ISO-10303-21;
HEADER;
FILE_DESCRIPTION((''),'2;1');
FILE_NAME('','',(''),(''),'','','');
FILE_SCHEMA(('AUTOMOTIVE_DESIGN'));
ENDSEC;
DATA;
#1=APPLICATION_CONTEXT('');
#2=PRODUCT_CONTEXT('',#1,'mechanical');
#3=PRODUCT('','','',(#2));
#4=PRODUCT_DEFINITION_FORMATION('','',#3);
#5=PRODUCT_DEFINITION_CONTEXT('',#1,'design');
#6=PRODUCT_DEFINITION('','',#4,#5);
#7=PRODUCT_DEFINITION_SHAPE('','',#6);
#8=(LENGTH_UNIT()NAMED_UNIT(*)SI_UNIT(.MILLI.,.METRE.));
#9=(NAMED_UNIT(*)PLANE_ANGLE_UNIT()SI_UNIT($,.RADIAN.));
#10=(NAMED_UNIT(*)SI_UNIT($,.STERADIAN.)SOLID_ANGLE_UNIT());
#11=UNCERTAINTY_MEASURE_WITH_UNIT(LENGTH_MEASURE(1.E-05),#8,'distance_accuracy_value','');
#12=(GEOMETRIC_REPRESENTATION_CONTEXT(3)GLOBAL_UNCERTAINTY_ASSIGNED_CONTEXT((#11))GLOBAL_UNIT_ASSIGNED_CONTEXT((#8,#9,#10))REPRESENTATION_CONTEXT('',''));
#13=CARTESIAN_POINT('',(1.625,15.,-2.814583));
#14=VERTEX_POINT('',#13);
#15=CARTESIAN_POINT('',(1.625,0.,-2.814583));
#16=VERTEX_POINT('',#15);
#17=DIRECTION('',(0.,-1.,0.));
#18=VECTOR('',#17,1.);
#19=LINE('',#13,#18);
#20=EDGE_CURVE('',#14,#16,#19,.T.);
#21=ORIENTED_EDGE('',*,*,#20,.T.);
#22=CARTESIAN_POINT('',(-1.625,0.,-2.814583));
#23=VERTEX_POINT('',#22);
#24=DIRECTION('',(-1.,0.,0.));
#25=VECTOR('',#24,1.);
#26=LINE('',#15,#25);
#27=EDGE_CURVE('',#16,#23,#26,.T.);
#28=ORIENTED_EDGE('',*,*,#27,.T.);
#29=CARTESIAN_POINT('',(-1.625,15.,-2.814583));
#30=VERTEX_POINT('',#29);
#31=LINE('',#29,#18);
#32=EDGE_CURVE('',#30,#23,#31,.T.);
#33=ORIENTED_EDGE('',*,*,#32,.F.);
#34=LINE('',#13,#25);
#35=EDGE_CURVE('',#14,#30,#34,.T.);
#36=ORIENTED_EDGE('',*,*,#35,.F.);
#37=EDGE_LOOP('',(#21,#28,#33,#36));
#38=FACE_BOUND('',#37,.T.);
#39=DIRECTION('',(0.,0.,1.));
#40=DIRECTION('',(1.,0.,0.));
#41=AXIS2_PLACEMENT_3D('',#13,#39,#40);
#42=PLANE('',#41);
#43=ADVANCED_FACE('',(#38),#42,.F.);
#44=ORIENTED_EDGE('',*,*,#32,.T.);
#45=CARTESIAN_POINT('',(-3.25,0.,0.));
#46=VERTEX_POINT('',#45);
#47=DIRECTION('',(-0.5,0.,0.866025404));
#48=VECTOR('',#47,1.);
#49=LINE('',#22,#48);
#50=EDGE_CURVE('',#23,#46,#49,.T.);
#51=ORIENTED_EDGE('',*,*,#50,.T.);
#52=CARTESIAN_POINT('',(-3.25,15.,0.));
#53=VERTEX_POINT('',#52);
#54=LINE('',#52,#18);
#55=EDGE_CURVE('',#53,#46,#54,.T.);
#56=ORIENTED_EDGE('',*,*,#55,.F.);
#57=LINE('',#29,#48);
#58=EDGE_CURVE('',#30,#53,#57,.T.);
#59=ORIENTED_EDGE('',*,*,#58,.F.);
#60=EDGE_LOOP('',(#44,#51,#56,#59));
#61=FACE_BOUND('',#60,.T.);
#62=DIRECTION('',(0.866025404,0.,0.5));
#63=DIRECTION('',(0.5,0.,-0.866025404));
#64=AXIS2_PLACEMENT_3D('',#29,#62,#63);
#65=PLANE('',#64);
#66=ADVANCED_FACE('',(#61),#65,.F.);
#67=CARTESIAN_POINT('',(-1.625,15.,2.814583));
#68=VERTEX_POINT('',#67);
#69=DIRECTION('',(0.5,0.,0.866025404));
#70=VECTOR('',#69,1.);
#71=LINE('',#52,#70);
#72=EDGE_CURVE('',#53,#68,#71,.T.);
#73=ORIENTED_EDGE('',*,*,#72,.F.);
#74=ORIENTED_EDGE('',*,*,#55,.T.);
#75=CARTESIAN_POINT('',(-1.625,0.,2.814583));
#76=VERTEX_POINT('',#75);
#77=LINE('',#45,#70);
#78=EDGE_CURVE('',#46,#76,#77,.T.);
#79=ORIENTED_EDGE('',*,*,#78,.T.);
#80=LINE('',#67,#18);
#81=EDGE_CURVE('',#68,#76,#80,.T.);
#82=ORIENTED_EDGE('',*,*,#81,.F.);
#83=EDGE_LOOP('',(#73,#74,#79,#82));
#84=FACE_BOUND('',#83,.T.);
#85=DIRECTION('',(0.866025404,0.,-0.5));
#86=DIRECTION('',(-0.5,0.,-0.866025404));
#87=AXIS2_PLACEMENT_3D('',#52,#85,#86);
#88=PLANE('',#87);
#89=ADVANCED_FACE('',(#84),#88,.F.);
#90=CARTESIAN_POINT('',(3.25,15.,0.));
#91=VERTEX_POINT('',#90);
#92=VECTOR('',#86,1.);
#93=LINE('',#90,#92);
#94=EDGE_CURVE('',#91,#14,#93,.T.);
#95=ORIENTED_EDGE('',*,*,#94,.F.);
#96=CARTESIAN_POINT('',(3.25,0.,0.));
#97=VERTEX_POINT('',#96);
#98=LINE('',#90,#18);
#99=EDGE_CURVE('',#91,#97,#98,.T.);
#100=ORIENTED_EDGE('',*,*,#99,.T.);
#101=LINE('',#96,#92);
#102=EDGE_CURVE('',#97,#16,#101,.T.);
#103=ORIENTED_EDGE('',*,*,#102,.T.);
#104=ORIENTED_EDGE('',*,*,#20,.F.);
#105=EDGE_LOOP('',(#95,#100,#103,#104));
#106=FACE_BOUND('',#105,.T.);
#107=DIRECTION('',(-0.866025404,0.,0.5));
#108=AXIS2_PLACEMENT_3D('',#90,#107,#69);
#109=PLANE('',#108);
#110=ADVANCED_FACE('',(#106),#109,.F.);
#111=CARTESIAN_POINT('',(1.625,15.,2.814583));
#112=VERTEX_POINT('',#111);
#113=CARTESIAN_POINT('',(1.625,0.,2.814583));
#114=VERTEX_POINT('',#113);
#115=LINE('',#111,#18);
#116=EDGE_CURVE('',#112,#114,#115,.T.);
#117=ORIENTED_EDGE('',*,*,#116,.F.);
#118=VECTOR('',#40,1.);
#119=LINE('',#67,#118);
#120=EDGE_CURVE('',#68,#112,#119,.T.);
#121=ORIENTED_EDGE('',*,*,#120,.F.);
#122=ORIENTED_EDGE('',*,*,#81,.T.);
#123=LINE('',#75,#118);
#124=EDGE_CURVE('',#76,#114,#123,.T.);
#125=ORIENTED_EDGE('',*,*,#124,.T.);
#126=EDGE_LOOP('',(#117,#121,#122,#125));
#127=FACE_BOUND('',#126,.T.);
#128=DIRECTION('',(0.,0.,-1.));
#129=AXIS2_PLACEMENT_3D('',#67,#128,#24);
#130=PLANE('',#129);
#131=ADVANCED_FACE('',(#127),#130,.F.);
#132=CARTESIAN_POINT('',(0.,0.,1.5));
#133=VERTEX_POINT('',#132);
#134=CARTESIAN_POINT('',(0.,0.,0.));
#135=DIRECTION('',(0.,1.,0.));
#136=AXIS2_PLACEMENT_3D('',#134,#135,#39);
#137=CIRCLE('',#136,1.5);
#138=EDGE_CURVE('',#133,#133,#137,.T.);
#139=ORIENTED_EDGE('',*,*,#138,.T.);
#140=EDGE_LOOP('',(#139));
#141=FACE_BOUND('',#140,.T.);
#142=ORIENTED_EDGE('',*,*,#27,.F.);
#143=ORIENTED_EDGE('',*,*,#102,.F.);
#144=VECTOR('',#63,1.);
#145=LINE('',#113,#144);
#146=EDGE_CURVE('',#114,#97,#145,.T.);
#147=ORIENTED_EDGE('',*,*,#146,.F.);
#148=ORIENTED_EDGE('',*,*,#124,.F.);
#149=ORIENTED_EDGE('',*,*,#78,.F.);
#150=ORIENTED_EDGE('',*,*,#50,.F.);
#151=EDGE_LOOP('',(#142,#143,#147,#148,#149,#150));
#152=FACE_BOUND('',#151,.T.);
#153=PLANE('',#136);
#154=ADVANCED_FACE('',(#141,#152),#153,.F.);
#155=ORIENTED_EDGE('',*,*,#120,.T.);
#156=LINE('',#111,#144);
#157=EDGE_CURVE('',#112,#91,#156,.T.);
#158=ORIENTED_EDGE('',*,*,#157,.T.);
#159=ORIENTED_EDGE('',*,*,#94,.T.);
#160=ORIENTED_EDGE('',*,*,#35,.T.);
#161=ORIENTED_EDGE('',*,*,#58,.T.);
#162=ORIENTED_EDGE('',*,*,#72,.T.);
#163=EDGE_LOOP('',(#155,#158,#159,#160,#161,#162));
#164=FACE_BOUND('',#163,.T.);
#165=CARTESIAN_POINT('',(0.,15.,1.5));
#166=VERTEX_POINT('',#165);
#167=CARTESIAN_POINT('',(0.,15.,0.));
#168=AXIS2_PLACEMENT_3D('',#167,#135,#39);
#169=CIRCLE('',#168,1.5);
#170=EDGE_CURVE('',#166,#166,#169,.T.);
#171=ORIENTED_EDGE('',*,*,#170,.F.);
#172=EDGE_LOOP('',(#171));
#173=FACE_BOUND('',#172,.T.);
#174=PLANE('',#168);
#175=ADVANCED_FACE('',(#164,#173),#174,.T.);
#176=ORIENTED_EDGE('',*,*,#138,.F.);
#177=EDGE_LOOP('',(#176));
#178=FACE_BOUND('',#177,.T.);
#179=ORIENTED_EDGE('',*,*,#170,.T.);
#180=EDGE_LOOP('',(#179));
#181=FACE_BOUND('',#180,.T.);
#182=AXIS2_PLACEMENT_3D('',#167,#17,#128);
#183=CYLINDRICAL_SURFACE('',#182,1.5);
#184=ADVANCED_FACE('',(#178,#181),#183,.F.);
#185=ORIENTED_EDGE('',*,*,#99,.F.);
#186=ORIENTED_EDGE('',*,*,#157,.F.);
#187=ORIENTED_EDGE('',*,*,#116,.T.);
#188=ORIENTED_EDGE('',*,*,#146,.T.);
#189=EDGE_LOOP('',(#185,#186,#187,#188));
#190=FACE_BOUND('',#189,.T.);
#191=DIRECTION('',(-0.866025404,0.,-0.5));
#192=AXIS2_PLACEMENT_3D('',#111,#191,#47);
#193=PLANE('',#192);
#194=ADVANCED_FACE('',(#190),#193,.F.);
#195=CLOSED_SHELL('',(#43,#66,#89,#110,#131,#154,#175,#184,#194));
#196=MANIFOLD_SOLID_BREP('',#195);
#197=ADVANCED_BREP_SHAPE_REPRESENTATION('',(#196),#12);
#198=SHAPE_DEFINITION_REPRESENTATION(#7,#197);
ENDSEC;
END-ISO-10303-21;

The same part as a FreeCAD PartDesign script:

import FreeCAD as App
import Part
import Sketcher

V = App.Vector
Q = App.Units.Quantity

doc = App.newDocument("Part")
body = doc.addObject("PartDesign::Body", "Body")

sketch1 = body.newObject("Sketcher::SketchObject", "Sketch")
sketch1.AttachmentSupport = (doc.getObject("XZ_Plane"), [""])
sketch1.MapMode = "FlatFace"
sketch1.addGeometry([
    Part.LineSegment(V(-1.625, -2.814583, 0), V(-3.25, 0, 0)),
    Part.LineSegment(V(-3.25, 0, 0), V(-1.625, 2.814583, 0)),
    Part.LineSegment(V(-1.625, 2.814583, 0), V(1.625, 2.814583, 0)),
    Part.LineSegment(V(1.625, 2.814583, 0), V(3.25, 0, 0)),
    Part.LineSegment(V(3.25, 0, 0), V(1.625, -2.814583, 0)),
    Part.LineSegment(V(1.625, -2.814583, 0), V(-1.625, -2.814583, 0)),
    Part.Circle(V(0, 0, 0), V(0, 0, 1), 1.5),
], False)
sketch1.addConstraint([
    Sketcher.Constraint("Coincident", 0, 2, 1, 1),
    Sketcher.Constraint("Coincident", 1, 2, 2, 1),
    Sketcher.Constraint("Coincident", 2, 2, 3, 1),
    Sketcher.Constraint("Coincident", 3, 2, 4, 1),
    Sketcher.Constraint("Coincident", 4, 2, 5, 1),
    Sketcher.Constraint("Coincident", 5, 2, 0, 1),
    Sketcher.Constraint("Horizontal", 2),
    Sketcher.Constraint("Horizontal", 5),
    Sketcher.Constraint("Coincident", 6, 3, -1, 1),
    Sketcher.Constraint("Symmetric", 0, 2, 3, 2, -1, 1),
    Sketcher.Constraint("Symmetric", 1, 2, 4, 2, -1, 1),
    Sketcher.Constraint("PointOnObject", 0, 2, -1),
    Sketcher.Constraint("Parallel", 0, 3),
    Sketcher.Constraint("Vertical", 2, 2, 4, 2),
    Sketcher.Constraint("Diameter", 6, Q("3 mm")),
    Sketcher.Constraint("Angle", 0, Q("120 deg")),
    Sketcher.Constraint("DistanceX", 2, 1, 2, 2, Q("3.25 mm")),
    Sketcher.Constraint("DistanceX", 0, 2, 3, 2, Q("6.5 mm")),
])
pad1 = body.newObject("PartDesign::Pad", "Pad")
pad1.Profile = sketch1
pad1.Length = 15
pad1.Reversed = True

doc.recompute()
